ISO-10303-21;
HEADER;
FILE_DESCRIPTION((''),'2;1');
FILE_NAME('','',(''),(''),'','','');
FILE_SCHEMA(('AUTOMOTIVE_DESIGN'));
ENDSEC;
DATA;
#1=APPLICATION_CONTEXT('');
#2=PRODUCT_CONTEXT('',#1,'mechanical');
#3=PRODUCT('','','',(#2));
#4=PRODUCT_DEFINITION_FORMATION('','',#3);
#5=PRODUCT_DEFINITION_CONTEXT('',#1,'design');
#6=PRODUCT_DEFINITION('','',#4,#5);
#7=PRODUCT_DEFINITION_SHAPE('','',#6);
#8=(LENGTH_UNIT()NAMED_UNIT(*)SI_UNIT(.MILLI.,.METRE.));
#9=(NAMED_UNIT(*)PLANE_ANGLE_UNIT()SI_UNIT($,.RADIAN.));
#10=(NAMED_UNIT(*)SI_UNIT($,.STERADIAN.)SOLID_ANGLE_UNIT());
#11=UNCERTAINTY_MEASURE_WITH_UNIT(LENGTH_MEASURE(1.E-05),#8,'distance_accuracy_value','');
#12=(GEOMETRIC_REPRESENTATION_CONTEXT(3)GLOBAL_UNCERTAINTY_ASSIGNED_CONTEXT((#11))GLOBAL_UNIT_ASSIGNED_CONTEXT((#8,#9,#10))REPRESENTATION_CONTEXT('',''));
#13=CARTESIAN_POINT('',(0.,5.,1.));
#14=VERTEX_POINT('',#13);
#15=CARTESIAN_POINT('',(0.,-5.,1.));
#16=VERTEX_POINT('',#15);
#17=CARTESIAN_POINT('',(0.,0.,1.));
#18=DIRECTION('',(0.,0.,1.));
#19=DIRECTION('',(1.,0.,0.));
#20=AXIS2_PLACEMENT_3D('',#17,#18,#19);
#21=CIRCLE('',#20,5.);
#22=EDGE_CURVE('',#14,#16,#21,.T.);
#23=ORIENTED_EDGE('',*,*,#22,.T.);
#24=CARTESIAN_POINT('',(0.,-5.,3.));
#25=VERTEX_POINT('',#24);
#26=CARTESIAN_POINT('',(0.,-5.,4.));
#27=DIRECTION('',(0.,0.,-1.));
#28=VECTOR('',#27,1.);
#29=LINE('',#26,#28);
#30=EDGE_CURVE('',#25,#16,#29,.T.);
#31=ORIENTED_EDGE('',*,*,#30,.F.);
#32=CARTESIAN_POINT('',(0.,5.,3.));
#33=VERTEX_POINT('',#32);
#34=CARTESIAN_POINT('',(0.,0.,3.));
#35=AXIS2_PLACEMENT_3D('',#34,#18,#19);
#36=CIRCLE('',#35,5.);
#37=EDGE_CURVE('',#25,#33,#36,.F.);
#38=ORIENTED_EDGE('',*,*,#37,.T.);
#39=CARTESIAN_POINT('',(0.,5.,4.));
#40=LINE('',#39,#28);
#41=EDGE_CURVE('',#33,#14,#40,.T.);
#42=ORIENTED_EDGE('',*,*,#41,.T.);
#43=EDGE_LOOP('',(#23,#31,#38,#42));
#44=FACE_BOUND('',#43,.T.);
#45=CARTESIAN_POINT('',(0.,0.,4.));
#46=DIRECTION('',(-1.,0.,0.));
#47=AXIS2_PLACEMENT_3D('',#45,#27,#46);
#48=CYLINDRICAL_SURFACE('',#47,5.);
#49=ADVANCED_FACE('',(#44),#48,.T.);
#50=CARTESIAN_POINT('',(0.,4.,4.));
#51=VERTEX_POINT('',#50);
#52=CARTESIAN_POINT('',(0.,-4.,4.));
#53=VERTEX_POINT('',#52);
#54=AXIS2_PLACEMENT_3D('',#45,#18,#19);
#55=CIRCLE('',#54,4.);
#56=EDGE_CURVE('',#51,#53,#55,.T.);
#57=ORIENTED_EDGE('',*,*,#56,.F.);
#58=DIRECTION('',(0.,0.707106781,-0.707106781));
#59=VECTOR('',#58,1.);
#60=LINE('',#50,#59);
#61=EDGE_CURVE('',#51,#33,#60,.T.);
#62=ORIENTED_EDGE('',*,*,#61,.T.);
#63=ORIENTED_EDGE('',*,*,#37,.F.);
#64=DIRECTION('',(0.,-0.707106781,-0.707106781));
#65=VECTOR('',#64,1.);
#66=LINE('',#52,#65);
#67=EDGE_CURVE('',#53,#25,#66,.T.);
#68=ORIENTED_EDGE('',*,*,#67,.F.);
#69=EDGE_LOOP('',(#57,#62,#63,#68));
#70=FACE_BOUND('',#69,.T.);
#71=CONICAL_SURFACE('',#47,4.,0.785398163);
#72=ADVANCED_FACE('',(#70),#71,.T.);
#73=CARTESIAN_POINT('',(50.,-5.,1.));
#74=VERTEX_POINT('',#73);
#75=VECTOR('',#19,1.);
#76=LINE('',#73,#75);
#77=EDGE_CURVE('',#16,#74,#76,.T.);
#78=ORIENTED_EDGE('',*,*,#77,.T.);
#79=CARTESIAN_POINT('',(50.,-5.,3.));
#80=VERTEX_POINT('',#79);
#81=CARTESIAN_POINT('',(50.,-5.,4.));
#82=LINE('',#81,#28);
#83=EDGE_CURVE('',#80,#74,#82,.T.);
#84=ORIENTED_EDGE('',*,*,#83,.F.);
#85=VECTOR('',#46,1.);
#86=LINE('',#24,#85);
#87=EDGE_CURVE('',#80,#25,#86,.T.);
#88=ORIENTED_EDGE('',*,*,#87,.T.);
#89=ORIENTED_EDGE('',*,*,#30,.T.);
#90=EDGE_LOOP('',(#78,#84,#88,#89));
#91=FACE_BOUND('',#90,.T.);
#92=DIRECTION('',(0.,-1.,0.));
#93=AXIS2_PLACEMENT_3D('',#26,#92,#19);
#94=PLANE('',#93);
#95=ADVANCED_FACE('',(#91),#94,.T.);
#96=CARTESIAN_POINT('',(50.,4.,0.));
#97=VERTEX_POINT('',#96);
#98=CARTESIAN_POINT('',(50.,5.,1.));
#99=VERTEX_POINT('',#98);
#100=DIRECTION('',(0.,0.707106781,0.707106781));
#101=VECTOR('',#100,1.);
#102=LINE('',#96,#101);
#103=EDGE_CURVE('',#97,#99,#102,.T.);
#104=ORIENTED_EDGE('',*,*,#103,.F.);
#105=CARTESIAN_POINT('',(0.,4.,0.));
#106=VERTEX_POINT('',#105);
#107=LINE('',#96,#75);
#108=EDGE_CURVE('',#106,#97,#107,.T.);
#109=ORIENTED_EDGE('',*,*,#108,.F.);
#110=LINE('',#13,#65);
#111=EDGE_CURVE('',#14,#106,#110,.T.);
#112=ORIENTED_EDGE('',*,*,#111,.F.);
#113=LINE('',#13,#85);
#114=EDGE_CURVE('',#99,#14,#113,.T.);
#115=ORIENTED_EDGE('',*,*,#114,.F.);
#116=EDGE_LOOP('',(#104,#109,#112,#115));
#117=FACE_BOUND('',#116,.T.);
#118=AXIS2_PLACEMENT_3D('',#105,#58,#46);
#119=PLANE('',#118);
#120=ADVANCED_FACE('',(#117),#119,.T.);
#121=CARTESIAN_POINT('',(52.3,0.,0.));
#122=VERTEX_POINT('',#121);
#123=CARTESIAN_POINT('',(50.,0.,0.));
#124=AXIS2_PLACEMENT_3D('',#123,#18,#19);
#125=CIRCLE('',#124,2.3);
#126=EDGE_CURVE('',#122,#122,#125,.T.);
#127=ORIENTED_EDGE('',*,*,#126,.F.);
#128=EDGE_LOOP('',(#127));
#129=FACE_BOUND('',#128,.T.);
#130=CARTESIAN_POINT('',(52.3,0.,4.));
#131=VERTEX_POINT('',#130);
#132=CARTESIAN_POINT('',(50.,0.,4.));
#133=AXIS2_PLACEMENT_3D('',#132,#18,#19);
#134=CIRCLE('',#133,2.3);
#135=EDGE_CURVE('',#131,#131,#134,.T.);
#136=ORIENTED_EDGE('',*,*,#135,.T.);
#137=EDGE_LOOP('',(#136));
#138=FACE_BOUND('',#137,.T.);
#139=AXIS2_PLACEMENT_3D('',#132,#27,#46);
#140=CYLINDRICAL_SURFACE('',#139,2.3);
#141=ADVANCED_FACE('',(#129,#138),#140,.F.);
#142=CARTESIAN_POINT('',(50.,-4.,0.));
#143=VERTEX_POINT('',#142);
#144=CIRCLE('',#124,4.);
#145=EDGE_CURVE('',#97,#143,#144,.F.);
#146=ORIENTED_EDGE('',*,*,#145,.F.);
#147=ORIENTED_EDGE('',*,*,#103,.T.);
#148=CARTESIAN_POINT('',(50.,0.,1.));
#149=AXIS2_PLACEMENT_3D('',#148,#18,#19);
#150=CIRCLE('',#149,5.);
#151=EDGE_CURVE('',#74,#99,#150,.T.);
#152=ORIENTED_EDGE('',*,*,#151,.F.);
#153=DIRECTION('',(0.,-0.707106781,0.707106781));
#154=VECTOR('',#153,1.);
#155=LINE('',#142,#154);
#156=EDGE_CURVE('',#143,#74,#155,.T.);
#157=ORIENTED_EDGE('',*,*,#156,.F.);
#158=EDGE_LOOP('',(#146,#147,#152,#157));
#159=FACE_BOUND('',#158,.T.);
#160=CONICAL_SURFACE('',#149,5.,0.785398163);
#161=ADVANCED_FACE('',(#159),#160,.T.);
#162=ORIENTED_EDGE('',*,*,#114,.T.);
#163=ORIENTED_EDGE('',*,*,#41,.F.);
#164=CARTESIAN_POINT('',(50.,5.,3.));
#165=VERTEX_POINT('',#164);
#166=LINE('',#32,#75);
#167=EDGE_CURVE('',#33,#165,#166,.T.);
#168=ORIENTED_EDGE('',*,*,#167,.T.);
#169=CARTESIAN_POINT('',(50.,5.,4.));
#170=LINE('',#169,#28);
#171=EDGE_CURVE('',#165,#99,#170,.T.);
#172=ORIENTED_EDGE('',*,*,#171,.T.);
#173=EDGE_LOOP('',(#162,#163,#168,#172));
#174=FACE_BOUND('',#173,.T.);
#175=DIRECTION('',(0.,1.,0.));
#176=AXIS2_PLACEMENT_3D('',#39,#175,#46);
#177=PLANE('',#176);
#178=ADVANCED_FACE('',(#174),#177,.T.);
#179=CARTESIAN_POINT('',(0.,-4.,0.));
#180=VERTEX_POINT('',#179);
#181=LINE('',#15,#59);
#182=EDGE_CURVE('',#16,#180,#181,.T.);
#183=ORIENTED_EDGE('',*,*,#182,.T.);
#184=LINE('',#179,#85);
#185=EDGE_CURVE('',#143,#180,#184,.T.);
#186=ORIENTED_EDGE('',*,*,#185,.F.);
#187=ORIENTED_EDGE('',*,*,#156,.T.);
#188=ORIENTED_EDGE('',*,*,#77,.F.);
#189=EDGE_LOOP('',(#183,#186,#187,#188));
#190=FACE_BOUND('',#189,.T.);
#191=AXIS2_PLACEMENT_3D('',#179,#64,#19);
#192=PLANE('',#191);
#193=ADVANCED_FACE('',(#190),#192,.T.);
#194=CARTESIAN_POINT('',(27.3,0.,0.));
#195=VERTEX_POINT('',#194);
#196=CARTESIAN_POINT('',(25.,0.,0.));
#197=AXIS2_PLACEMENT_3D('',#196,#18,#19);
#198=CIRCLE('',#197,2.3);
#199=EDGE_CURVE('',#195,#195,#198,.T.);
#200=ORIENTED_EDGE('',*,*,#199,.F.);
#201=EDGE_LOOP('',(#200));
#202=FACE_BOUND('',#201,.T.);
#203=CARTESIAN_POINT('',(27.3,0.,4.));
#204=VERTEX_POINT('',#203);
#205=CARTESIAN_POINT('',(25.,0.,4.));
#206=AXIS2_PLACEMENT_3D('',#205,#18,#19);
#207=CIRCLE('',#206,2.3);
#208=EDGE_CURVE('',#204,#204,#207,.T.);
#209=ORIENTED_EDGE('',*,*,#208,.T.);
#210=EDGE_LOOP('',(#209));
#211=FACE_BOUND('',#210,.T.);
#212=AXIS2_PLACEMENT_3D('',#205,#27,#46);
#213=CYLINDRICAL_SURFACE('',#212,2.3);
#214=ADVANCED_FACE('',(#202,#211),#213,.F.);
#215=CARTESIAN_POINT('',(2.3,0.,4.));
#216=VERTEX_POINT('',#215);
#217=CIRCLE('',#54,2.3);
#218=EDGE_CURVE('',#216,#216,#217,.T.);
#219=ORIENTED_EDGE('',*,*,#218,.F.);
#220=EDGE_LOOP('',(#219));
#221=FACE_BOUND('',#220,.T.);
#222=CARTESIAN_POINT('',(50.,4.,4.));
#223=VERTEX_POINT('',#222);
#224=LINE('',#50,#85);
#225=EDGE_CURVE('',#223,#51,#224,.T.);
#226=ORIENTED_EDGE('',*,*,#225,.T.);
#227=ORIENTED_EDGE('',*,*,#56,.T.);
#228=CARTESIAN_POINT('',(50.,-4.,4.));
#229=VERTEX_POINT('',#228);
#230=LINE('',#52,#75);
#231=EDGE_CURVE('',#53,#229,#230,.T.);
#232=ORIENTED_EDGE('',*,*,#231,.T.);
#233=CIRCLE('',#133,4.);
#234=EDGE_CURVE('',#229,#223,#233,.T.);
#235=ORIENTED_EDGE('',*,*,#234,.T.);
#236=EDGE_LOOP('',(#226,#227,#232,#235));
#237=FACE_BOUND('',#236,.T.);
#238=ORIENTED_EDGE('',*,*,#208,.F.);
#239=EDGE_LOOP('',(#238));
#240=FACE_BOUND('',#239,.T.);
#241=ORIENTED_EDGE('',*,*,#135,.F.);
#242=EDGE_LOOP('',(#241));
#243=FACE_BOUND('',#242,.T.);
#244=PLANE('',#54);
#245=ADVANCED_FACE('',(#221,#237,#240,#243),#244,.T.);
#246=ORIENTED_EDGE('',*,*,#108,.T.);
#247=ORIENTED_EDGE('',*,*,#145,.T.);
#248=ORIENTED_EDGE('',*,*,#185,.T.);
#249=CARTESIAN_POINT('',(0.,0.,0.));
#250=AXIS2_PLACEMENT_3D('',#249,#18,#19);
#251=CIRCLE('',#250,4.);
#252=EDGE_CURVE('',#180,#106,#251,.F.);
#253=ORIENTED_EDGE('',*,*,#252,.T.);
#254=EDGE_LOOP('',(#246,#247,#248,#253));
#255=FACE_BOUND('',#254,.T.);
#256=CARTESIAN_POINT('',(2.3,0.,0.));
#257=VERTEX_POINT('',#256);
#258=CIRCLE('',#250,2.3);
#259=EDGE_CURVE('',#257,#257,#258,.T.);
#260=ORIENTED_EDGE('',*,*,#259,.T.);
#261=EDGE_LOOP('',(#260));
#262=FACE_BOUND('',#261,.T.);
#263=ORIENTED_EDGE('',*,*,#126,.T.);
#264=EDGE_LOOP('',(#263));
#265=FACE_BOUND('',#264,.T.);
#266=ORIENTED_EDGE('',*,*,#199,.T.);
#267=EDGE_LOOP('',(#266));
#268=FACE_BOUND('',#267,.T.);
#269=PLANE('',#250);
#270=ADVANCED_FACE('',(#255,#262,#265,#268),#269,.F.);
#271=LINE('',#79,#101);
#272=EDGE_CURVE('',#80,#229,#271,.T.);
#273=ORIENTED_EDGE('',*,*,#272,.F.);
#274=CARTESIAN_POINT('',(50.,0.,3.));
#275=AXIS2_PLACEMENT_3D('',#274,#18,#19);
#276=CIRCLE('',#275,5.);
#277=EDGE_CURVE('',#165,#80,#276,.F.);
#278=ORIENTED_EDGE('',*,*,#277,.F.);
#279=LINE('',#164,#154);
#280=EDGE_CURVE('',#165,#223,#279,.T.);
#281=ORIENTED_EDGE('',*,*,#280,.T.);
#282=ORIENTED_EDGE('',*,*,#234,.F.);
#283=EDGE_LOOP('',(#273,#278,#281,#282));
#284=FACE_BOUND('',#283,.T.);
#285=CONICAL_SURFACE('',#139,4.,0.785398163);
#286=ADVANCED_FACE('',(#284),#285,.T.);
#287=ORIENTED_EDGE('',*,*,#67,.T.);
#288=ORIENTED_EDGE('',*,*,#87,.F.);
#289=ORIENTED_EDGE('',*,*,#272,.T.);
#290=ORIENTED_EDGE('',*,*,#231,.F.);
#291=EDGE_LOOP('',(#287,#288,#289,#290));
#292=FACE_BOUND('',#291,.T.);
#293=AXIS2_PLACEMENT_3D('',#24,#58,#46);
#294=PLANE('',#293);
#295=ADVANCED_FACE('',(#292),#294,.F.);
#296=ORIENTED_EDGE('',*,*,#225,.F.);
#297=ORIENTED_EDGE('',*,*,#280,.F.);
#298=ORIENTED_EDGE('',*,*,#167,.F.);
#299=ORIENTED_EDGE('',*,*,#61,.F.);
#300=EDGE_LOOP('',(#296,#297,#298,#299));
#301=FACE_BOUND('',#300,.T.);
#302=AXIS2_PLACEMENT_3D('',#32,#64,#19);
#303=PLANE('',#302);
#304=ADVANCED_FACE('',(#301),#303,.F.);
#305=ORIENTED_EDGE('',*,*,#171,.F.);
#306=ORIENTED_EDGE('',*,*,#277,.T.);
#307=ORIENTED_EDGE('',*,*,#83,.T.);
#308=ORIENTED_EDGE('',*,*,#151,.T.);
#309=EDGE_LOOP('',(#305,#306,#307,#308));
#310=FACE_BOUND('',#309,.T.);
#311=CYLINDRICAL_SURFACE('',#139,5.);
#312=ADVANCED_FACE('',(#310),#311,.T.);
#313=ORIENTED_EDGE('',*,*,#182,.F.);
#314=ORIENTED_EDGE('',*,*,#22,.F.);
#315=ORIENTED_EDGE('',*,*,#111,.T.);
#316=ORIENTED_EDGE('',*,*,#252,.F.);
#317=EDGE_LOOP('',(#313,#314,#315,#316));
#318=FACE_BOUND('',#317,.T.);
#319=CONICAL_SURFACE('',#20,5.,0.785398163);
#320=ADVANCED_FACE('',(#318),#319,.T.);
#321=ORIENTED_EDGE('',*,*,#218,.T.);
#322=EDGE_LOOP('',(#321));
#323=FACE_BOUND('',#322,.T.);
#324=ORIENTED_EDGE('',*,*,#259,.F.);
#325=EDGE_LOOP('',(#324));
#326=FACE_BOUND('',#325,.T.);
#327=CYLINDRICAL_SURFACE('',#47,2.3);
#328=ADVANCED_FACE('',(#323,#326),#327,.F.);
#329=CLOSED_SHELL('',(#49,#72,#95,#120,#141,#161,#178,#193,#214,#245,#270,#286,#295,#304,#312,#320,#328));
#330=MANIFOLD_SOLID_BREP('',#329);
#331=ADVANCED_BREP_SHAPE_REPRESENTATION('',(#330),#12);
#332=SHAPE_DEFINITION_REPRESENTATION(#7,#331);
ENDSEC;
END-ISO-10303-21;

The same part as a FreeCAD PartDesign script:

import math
import FreeCAD as App
import Part
import Sketcher


def edges_at(feature, points):
    """Names of the edges that pass closest to the given points."""
    edges = feature.Shape.Edges
    near = lambda p: min(range(len(edges)), key=lambda i: edges[i].distToShape(Part.Vertex(*p))[0])
    return sorted({f"Edge{near(p) + 1}" for p in points})

doc = App.newDocument("Part")
body = doc.addObject("PartDesign::Body", "Body")

# Sketch on XY plane
sketch1 = body.newObject("Sketcher::SketchObject", "Sketch")
sketch1.AttachmentSupport = (doc.getObject("XY_Plane"), [""])
sketch1.MapMode = "FlatFace"
sketch1.addGeometry(Part.LineSegment(App.Vector(50, 5, 0), App.Vector(0, 5, 0)), False)
sketch1.addGeometry(Part.ArcOfCircle(Part.Circle(App.Vector(0, 0, 0), App.Vector(0, 0, 1), 5), math.radians(90), math.radians(270)), False)
sketch1.addGeometry(Part.LineSegment(App.Vector(0, -5, 0), App.Vector(50, -5, 0)), False)
sketch1.addGeometry(Part.ArcOfCircle(Part.Circle(App.Vector(50, 0, 0), App.Vector(0, 0, 1), 5), math.radians(-90), math.radians(90)), False)
sketch1.addGeometry(Part.Circle(App.Vector(0, 0, 0), App.Vector(0, 0, 1), 2.3), False)
sketch1.addGeometry(Part.Circle(App.Vector(25, 0, 0), App.Vector(0, 0, 1), 2.3), False)
sketch1.addGeometry(Part.Circle(App.Vector(50, 0, 0), App.Vector(0, 0, 1), 2.3), False)
sketch1.addConstraint(Sketcher.Constraint("Tangent", 0, 2, 1, 1))
sketch1.addConstraint(Sketcher.Constraint("Tangent", 1, 2, 2, 1))
sketch1.addConstraint(Sketcher.Constraint("Tangent", 2, 2, 3, 1))
sketch1.addConstraint(Sketcher.Constraint("Tangent", 3, 2, 0, 1))
sketch1.addConstraint(Sketcher.Constraint("Horizontal", 0))
sketch1.addConstraint(Sketcher.Constraint("Horizontal", 2))
sketch1.addConstraint(Sketcher.Constraint("Coincident", 1, 3, -1, 1))
sketch1.addConstraint(Sketcher.Constraint("Coincident", 4, 3, -1, 1))
sketch1.addConstraint(Sketcher.Constraint("Coincident", 6, 3, 3, 3))
sketch1.addConstraint(Sketcher.Constraint("Equal", 4, 5))
sketch1.addConstraint(Sketcher.Constraint("Equal", 5, 6))
sketch1.addConstraint(Sketcher.Constraint("PointOnObject", 5, 3, -1))
sketch1.addConstraint(Sketcher.Constraint("Radius", 1, 5.0))
sketch1.addConstraint(Sketcher.Constraint("Diameter", 4, 4.6))
sketch1.addConstraint(Sketcher.Constraint("DistanceX", 0, 2, 0, 1, 50.0))
sketch1.addConstraint(Sketcher.Constraint("DistanceX", -1, 1, 5, 3, 25.0))
pad1 = body.newObject("PartDesign::Pad", "Pad")
pad1.Profile = sketch1
pad1.Length = 4
doc.recompute()

chamfer = body.newObject("PartDesign::Chamfer", "Chamfer")
chamfer.Base = (pad1, edges_at(pad1, [
    (-5, 0, 0),
    (25, 5, 0),
    (55, 0, 0),
    (25, -5, 0),
    (55, 0, 4),
    (25, 5, 4),
    (-5, 0, 4),
    (25, -5, 4),
]))
chamfer.Size = 1

doc.recompute()
